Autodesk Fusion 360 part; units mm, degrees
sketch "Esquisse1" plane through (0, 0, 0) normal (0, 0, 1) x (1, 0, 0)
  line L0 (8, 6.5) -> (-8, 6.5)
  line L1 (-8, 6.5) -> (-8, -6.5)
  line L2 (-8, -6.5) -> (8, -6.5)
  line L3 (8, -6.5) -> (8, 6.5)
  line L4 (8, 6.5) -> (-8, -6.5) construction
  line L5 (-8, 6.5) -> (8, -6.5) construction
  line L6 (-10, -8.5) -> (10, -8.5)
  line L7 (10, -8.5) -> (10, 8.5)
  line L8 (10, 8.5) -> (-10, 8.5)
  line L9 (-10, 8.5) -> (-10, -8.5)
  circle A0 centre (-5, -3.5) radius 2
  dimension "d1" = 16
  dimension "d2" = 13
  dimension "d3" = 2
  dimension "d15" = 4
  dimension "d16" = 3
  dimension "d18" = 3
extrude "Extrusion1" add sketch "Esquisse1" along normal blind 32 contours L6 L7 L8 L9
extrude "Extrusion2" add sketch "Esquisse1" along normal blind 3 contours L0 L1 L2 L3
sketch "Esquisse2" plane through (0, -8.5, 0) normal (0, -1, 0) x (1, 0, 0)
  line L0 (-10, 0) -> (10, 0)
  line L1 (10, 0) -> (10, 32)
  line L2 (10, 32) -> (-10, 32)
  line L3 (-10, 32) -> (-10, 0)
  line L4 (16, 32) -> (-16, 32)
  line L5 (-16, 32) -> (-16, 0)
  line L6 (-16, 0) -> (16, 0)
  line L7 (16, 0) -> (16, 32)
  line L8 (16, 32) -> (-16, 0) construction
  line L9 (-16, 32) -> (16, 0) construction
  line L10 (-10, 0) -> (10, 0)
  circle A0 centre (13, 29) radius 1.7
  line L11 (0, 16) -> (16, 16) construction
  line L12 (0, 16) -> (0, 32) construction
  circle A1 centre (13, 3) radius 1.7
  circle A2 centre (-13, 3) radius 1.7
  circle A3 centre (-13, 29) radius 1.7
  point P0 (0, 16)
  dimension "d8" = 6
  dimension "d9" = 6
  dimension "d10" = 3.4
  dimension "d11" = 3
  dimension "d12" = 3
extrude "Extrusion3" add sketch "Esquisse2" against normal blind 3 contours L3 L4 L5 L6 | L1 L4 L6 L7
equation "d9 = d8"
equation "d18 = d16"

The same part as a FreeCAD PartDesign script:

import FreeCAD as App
import Part
import Sketcher
from FreeCAD import Vector
Q = App.Units.Quantity


def add_polygon(sketch, points):
    """Adds a closed chain of lines whose ends are joined by coincident constraints."""
    first, n = sketch.GeometryCount, len(points)
    for a, b in zip(points, points[1:] + points[:1]):
        sketch.addGeometry(Part.LineSegment(App.Vector(*a, 0), App.Vector(*b, 0)), False)
    for i in range(n):
        sketch.addConstraint(Sketcher.Constraint("Coincident", first + i, 2, first + (i + 1) % n, 1))

doc = App.newDocument("Part")
params = doc.addObject("Spreadsheet::Sheet", "Params")
for row, (alias, value) in enumerate([
    ("sketch1_width", "16 mm"),
    ("sketch1_height", "13 mm"),
    ("pad1_length", "32 mm"),
    ("sketch2_diameter", "4 mm"),
    ("sketch2_width", "16 mm"),
    ("sketch2_height", "13 mm"),
    ("pad2_length", "3 mm"),
    ("sketch3_diameter", "3.4 mm"),
    ("sketch3_width", "6 mm"),
    ("sketch3_height", "32 mm"),
    ("pad3_length", "3 mm"),
], start=1):
    params.set(f"A{row}", alias)
    params.set(f"B{row}", "=" + value)
    params.setAlias(f"B{row}", alias)

body = doc.addObject("PartDesign::Body", "Body")

# Sketch on XY plane
sketch1 = body.newObject("Sketcher::SketchObject", "Sketch")
sketch1.AttachmentSupport = (doc.getObject("XY_Plane"), [""])
sketch1.MapMode = "FlatFace"
add_polygon(sketch1, [(-10, 8.5), (-10, -8.5), (10, -8.5), (10, 8.5)])  # lines 0-3
add_polygon(sketch1, [(-8, 6.5), (8, 6.5), (8, -6.5), (-8, -6.5)])  # lines 4-7
sketch1.addConstraint([
    Sketcher.Constraint("Vertical", 0),
    Sketcher.Constraint("Horizontal", 1),
    Sketcher.Constraint("Vertical", 2),
    Sketcher.Constraint("Horizontal", 3),
    Sketcher.Constraint("Horizontal", 4),
    Sketcher.Constraint("Vertical", 5),
    Sketcher.Constraint("Horizontal", 6),
    Sketcher.Constraint("Vertical", 7),
    Sketcher.Constraint("Symmetric", 0, 2, 2, 2, -1, 1),
    Sketcher.Constraint("Symmetric", 4, 2, 6, 2, -1, 1),
    Sketcher.Constraint("DistanceX", 4, 1, 4, 2, Q("16 mm")),
    Sketcher.Constraint("DistanceY", 5, 2, 5, 1, Q("13 mm")),
    Sketcher.Constraint("DistanceX", 4, 2, 2, 2, Q("2 mm")),
    Sketcher.Constraint("DistanceY", 4, 2, 2, 2, Q("2 mm")),
])
sketch1.setExpression("Constraints[18]", "Params.sketch1_width")
sketch1.setExpression("Constraints[19]", "Params.sketch1_height")
pad1 = body.newObject("PartDesign::Pad", "Pad")
pad1.Profile = sketch1
pad1.setExpression("Length", "Params.pad1_length")

# Sketch on XY plane
sketch2 = body.newObject("Sketcher::SketchObject", "Sketch001")
sketch2.AttachmentSupport = (doc.getObject("XY_Plane"), [""])
sketch2.MapMode = "FlatFace"
add_polygon(sketch2, [(8, -6.5), (8, 6.5), (-8, 6.5), (-8, -6.5)])  # lines 0-3
sketch2.addGeometry(Part.Circle(Vector(-5, -3.5, 0), Vector(0, 0, 1), 2), False)  # 4
sketch2.addConstraint([
    Sketcher.Constraint("Vertical", 0),
    Sketcher.Constraint("Horizontal", 1),
    Sketcher.Constraint("Vertical", 2),
    Sketcher.Constraint("Horizontal", 3),
    Sketcher.Constraint("Symmetric", 0, 2, 2, 2, -1, 1),
    Sketcher.Constraint("Diameter", 4, Q("4 mm")),
    Sketcher.Constraint("DistanceX", 1, 2, 1, 1, Q("16 mm")),
    Sketcher.Constraint("DistanceY", 0, 1, 0, 2, Q("13 mm")),
    Sketcher.Constraint("DistanceX", 4, 3, 0, 2, Q("13 mm")),
    Sketcher.Constraint("DistanceY", 2, 2, 4, 3, Q("3 mm")),
])
sketch2.setExpression("Constraints[9]", "Params.sketch2_diameter")
sketch2.setExpression("Constraints[10]", "Params.sketch2_width")
sketch2.setExpression("Constraints[11]", "Params.sketch2_height")
pad2 = body.newObject("PartDesign::Pad", "Pad001")
pad2.Profile = sketch2
pad2.setExpression("Length", "Params.pad2_length")

# Sketch on XZ plane
sketch3 = body.newObject("Sketcher::SketchObject", "Sketch002")
sketch3.AttachmentSupport = (doc.getObject("XZ_Plane"), [""])
sketch3.MapMode = "FlatFace"
sketch3.AttachmentOffset = App.Placement(Vector(0, 0, 8.5), App.Rotation())
add_polygon(sketch3, [(-16, 0), (-10, 0), (-10, 32), (-16, 32)])  # lines 0-3
sketch3.addGeometry(Part.Circle(Vector(-13, 3, 0), Vector(0, 0, 1), 1.7), False)  # 4
sketch3.addGeometry(Part.Circle(Vector(-13, 29, 0), Vector(0, 0, 1), 1.7), False)  # 5
add_polygon(sketch3, [(10, 32), (10, 0), (16, 0), (16, 32)])  # lines 6-9
sketch3.addGeometry(Part.Circle(Vector(13, 3, 0), Vector(0, 0, 1), 1.7), False)  # 10
sketch3.addGeometry(Part.Circle(Vector(13, 29, 0), Vector(0, 0, 1), 1.7), False)  # 11
sketch3.addConstraint([
    Sketcher.Constraint("Horizontal", 0),
    Sketcher.Constraint("Vertical", 1),
    Sketcher.Constraint("Horizontal", 2),
    Sketcher.Constraint("Vertical", 3),
    Sketcher.Constraint("Vertical", 6),
    Sketcher.Constraint("Horizontal", 7),
    Sketcher.Constraint("Vertical", 8),
    Sketcher.Constraint("Horizontal", 9),
    Sketcher.Constraint("Equal", 4, 5),
    Sketcher.Constraint("Equal", 5, 10),
    Sketcher.Constraint("Equal", 10, 11),
    Sketcher.Constraint("Symmetric", 0, 2, 6, 2, -1, 1),
    Sketcher.Constraint("Symmetric", 4, 3, 10, 3, -2),
    Sketcher.Constraint("Symmetric", 5, 3, 11, 3, -2),
    Sketcher.Constraint("Symmetric", 3, 2, 7, 2, -2),
    Sketcher.Constraint("Horizontal", 2, 2, 8, 2),
    Sketcher.Constraint("Vertical", 4, 3, 5, 3),
    Sketcher.Constraint("Diameter", 4, Q("3.4 mm")),
    Sketcher.Constraint("DistanceX", 0, 1, 0, 2, Q("6 mm")),
    Sketcher.Constraint("DistanceY", -1, 1, 4, 3, Q("3 mm")),
    Sketcher.Constraint("DistanceX", 4, 3, 0, 2, Q("3 mm")),
    Sketcher.Constraint("DistanceY", 5, 3, 1, 2, Q("3 mm")),
    Sketcher.Constraint("DistanceY", 1, 1, 1, 2, Q("32 mm")),
    Sketcher.Constraint("DistanceX", 4, 3, -1, 1, Q("13 mm")),
])
sketch3.setExpression("Constraints[25]", "Params.sketch3_diameter")
sketch3.setExpression("Constraints[26]", "Params.sketch3_width")
sketch3.setExpression("Constraints[30]", "Params.sketch3_height")
pad3 = body.newObject("PartDesign::Pad", "Pad002")
pad3.Profile = sketch3
pad3.setExpression("Length", "Params.pad3_length")
pad3.Reversed = True

doc.recompute()
